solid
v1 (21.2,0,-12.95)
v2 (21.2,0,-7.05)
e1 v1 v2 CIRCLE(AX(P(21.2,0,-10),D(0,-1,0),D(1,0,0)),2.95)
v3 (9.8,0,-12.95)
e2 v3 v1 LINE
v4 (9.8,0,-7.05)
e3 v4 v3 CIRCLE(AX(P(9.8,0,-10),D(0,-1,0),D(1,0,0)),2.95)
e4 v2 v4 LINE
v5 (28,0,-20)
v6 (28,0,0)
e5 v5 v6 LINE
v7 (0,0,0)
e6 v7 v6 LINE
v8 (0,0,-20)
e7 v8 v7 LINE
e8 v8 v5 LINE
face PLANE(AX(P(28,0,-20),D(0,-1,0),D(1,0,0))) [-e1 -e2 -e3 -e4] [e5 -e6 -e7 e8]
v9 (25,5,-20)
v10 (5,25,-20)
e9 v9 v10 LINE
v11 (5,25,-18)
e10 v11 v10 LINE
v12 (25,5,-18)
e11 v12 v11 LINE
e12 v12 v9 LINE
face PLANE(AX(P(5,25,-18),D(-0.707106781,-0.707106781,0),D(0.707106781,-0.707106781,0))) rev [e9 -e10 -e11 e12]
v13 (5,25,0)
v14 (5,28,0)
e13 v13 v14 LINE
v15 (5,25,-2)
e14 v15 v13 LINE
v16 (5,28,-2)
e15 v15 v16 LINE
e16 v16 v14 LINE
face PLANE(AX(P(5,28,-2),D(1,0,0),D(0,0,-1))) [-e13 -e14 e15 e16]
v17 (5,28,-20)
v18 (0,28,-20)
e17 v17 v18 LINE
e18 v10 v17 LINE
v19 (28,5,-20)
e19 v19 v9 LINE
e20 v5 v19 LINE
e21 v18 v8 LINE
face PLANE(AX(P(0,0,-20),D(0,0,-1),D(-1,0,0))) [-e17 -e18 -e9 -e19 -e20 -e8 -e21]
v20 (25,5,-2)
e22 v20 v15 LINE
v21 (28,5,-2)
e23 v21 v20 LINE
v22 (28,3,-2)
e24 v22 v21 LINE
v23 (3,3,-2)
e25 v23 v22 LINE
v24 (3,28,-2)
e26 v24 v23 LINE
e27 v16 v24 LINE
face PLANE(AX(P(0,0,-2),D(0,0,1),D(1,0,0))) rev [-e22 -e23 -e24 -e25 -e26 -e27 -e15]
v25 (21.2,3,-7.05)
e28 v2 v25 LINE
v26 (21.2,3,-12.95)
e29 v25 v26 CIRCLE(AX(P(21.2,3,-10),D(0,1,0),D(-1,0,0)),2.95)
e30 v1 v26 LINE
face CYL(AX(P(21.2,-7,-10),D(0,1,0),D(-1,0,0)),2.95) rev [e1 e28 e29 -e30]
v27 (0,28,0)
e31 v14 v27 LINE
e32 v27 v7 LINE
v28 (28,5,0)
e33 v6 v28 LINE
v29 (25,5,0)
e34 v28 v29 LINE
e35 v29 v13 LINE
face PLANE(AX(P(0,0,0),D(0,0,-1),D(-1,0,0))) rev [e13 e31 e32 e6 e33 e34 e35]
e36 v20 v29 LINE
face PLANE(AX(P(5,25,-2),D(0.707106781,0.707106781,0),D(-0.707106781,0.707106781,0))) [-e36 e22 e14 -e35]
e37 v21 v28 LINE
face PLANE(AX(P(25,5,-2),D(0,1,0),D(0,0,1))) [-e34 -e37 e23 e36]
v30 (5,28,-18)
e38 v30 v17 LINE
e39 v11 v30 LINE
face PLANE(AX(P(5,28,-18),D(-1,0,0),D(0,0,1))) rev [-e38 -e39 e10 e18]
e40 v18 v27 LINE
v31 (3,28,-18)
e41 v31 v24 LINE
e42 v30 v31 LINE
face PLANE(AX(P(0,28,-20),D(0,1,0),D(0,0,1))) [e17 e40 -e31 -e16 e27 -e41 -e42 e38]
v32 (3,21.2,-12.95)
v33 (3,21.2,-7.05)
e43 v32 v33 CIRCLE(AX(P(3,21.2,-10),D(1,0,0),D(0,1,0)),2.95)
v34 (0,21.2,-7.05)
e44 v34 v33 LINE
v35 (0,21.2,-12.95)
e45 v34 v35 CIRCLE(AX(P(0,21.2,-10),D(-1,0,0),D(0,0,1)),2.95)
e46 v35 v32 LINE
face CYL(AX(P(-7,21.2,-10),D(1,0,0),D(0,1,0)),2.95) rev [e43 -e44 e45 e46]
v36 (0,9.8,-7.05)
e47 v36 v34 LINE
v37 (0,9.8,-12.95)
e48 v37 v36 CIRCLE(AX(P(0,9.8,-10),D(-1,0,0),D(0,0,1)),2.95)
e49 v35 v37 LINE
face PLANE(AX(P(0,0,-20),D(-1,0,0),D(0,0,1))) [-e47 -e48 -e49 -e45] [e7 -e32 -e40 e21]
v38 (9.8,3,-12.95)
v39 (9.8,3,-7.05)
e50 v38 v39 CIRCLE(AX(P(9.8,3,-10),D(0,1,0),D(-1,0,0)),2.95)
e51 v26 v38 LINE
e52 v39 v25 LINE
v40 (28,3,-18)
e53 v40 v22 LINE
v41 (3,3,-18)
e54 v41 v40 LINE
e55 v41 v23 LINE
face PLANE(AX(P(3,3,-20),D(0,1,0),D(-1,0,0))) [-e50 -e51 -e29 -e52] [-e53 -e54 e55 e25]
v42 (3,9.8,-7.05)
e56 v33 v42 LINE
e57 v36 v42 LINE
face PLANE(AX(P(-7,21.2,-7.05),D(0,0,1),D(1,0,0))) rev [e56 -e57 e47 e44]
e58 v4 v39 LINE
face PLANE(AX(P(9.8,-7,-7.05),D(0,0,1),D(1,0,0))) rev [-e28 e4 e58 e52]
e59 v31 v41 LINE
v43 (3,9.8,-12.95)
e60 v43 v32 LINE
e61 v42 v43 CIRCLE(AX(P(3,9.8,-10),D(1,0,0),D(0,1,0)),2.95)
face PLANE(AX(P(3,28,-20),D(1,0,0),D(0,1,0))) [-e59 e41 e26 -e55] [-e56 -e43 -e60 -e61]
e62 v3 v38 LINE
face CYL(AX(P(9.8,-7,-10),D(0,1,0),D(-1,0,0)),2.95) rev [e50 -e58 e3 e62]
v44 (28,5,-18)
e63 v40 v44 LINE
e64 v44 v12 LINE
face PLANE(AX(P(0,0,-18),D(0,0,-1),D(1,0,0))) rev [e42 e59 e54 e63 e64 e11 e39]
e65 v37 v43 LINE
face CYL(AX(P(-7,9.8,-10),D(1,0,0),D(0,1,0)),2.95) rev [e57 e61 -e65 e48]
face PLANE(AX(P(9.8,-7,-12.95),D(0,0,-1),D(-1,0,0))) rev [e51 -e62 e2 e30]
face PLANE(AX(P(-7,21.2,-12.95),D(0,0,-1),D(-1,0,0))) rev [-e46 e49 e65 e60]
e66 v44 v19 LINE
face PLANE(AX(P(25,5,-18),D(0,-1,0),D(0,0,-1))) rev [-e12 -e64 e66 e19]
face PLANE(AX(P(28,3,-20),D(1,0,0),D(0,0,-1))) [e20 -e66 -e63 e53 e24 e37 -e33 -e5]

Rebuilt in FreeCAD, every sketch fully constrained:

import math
import FreeCAD as App
import Part
import Sketcher
from FreeCAD import Vector
Q = App.Units.Quantity

doc = App.newDocument("Part")
body = doc.addObject("PartDesign::Body", "Body")

sketch1 = body.newObject("Sketcher::SketchObject", "Sketch")
sketch1.AttachmentSupport = (doc.getObject("XY_Plane"), [""])
sketch1.MapMode = "FlatFace"
sketch1.addGeometry(Part.LineSegment(Vector(0, 28, 0), Vector(0, 0, 0)), False)
sketch1.addGeometry(Part.LineSegment(Vector(0, 0, 0), Vector(28, 0, 0)), False)
sketch1.addGeometry(Part.LineSegment(Vector(28, 0, 0), Vector(28, 3, 0)), False)
sketch1.addGeometry(Part.LineSegment(Vector(28, 3, 0), Vector(3, 3, 0)), False)
sketch1.addGeometry(Part.LineSegment(Vector(3, 3, 0), Vector(3, 28, 0)), False)
sketch1.addGeometry(Part.LineSegment(Vector(3, 28, 0), Vector(0, 28, 0)), False)
sketch1.addConstraint(Sketcher.Constraint("Coincident", 0, 2, 1, 1))
sketch1.addConstraint(Sketcher.Constraint("Coincident", 1, 2, 2, 1))
sketch1.addConstraint(Sketcher.Constraint("Coincident", 2, 2, 3, 1))
sketch1.addConstraint(Sketcher.Constraint("Coincident", 3, 2, 4, 1))
sketch1.addConstraint(Sketcher.Constraint("Coincident", 4, 2, 5, 1))
sketch1.addConstraint(Sketcher.Constraint("Coincident", 5, 2, 0, 1))
sketch1.addConstraint(Sketcher.Constraint("Vertical", 0))
sketch1.addConstraint(Sketcher.Constraint("Horizontal", 1))
sketch1.addConstraint(Sketcher.Constraint("Vertical", 2))
sketch1.addConstraint(Sketcher.Constraint("Horizontal", 3))
sketch1.addConstraint(Sketcher.Constraint("Vertical", 4))
sketch1.addConstraint(Sketcher.Constraint("Horizontal", 5))
sketch1.addConstraint(Sketcher.Constraint("Coincident", 0, 2, -1, 1))
sketch1.addConstraint(Sketcher.Constraint("Equal", 1, 0))
sketch1.addConstraint(Sketcher.Constraint("Equal", 5, 2))
sketch1.addConstraint(Sketcher.Constraint("DistanceX", 1, 1, 1, 2, Q("28 mm")))
sketch1.addConstraint(Sketcher.Constraint("DistanceX", 3, 2, 3, 1, Q("25 mm")))
pad1 = body.newObject("PartDesign::Pad", "Pad")
pad1.Profile = sketch1
pad1.Length = 20
pad1.Reversed = True

sketch2 = body.newObject("Sketcher::SketchObject", "Sketch001")
sketch2.AttachmentSupport = (doc.getObject("XZ_Plane"), [""])
sketch2.MapMode = "FlatFace"
sketch2.AttachmentOffset = App.Placement(Vector(0, 0, -3), App.Rotation())
sketch2.addGeometry(Part.LineSegment(Vector(21.2, -12.9, 0), Vector(9.8, -12.9, 0)), False)
sketch2.addGeometry(Part.ArcOfCircle(Part.Circle(Vector(9.8, -10, 0), Vector(0, 0, 1), 3), math.radians(90), math.radians(270)), False)
sketch2.addGeometry(Part.LineSegment(Vector(9.8, -7, 0), Vector(21.2, -7, 0)), False)
sketch2.addGeometry(Part.ArcOfCircle(Part.Circle(Vector(21.2, -10, 0), Vector(0, 0, 1), 3), math.radians(-90), math.radians(90)), False)
sketch2.addConstraint(Sketcher.Constraint("Tangent", 0, 2, 1, 2))
sketch2.addConstraint(Sketcher.Constraint("Tangent", 1, 1, 2, 1))
sketch2.addConstraint(Sketcher.Constraint("Tangent", 2, 2, 3, 2))
sketch2.addConstraint(Sketcher.Constraint("Tangent", 3, 1, 0, 1))
sketch2.addConstraint(Sketcher.Constraint("Horizontal", 0))
sketch2.addConstraint(Sketcher.Constraint("Horizontal", 2))
sketch2.addConstraint(Sketcher.Constraint("Radius", 1, Q("2.95 mm")))
sketch2.addConstraint(Sketcher.Constraint("DistanceX", 0, 2, 0, 1, Q("11.4 mm")))
sketch2.addConstraint(Sketcher.Constraint("DistanceY", 1, 3, -1, 1, Q("10 mm")))
sketch2.addConstraint(Sketcher.Constraint("DistanceX", -1, 1, 1, 3, Q("9.8 mm")))
pocket1 = body.newObject("PartDesign::Pocket", "Pocket")
pocket1.Profile = sketch2
pocket1.Length = 10
pocket1.Reversed = True

sketch3 = body.newObject("Sketcher::SketchObject", "Sketch002")
sketch3.AttachmentSupport = (doc.getObject("YZ_Plane"), [""])
sketch3.MapMode = "FlatFace"
sketch3.AttachmentOffset = App.Placement(Vector(0, 0, 3), App.Rotation())
sketch3.addGeometry(Part.LineSegment(Vector(9.8, -12.9, 0), Vector(21.2, -12.9, 0)), False)
sketch3.addGeometry(Part.ArcOfCircle(Part.Circle(Vector(21.2, -10, 0), Vector(0, 0, 1), 3), math.radians(-90), math.radians(90)), False)
sketch3.addGeometry(Part.LineSegment(Vector(21.2, -7, 0), Vector(9.8, -7, 0)), False)
sketch3.addGeometry(Part.ArcOfCircle(Part.Circle(Vector(9.8, -10, 0), Vector(0, 0, 1), 3), math.radians(90), math.radians(270)), False)
sketch3.addConstraint(Sketcher.Constraint("Tangent", 0, 2, 1, 1))
sketch3.addConstraint(Sketcher.Constraint("Tangent", 1, 2, 2, 1))
sketch3.addConstraint(Sketcher.Constraint("Tangent", 2, 2, 3, 1))
sketch3.addConstraint(Sketcher.Constraint("Tangent", 3, 2, 0, 1))
sketch3.addConstraint(Sketcher.Constraint("Horizontal", 0))
sketch3.addConstraint(Sketcher.Constraint("Horizontal", 2))
sketch3.addConstraint(Sketcher.Constraint("Radius", 1, Q("2.95 mm")))
sketch3.addConstraint(Sketcher.Constraint("DistanceX", 0, 1, 0, 2, Q("11.4 mm")))
sketch3.addConstraint(Sketcher.Constraint("DistanceY", 1, 3, -1, 1, Q("10 mm")))
sketch3.addConstraint(Sketcher.Constraint("DistanceX", -1, 1, 1, 3, Q("21.2 mm")))
pocket2 = body.newObject("PartDesign::Pocket", "Pocket001")
pocket2.Profile = sketch3
pocket2.Length = 10

sketch4 = body.newObject("Sketcher::SketchObject", "Sketch003")
sketch4.AttachmentSupport = (doc.getObject("XY_Plane"), [""])
sketch4.MapMode = "FlatFace"
sketch4.addGeometry(Part.LineSegment(Vector(5, 28, 0), Vector(3, 28, 0)), False)
sketch4.addGeometry(Part.LineSegment(Vector(3, 28, 0), Vector(3, 3, 0)), False)
sketch4.addGeometry(Part.LineSegment(Vector(3, 3, 0), Vector(28, 3, 0)), False)
sketch4.addGeometry(Part.LineSegment(Vector(28, 3, 0), Vector(28, 5, 0)), False)
sketch4.addGeometry(Part.LineSegment(Vector(28, 5, 0), Vector(25, 5, 0)), False)
sketch4.addGeometry(Part.LineSegment(Vector(25, 5, 0), Vector(5, 25, 0)), False)
sketch4.addGeometry(Part.LineSegment(Vector(5, 25, 0), Vector(5, 28, 0)), False)
sketch4.addConstraint(Sketcher.Constraint("Coincident", 0, 2, 1, 1))
sketch4.addConstraint(Sketcher.Constraint("Coincident", 1, 2, 2, 1))
sketch4.addConstraint(Sketcher.Constraint("Coincident", 2, 2, 3, 1))
sketch4.addConstraint(Sketcher.Constraint("Coincident", 3, 2, 4, 1))
sketch4.addConstraint(Sketcher.Constraint("Coincident", 4, 2, 5, 1))
sketch4.addConstraint(Sketcher.Constraint("Coincident", 5, 2, 6, 1))
sketch4.addConstraint(Sketcher.Constraint("Coincident", 6, 2, 0, 1))
sketch4.addConstraint(Sketcher.Constraint("Horizontal", 0))
sketch4.addConstraint(Sketcher.Constraint("Vertical", 1))
sketch4.addConstraint(Sketcher.Constraint("Horizontal", 2))
sketch4.addConstraint(Sketcher.Constraint("Vertical", 3))
sketch4.addConstraint(Sketcher.Constraint("Horizontal", 4))
sketch4.addConstraint(Sketcher.Constraint("Vertical", 6))
sketch4.addConstraint(Sketcher.Constraint("Equal", 2, 1))
sketch4.addConstraint(Sketcher.Constraint("Equal", 0, 3))
sketch4.addConstraint(Sketcher.Constraint("Equal", 4, 6))
sketch4.addConstraint(Sketcher.Constraint("DistanceX", 0, 2, 0, 1, Q("2 mm")))
sketch4.addConstraint(Sketcher.Constraint("DistanceX", 2, 1, 2, 2, Q("25 mm")))
sketch4.addConstraint(Sketcher.Constraint("DistanceX", 4, 2, 4, 1, Q("3 mm")))
sketch4.addConstraint(Sketcher.Constraint("DistanceX", -1, 1, 0, 2, Q("3 mm")))
sketch4.addConstraint(Sketcher.Constraint("DistanceY", -1, 1, 0, 2, Q("28 mm")))
pad2 = body.newObject("PartDesign::Pad", "Pad001")
pad2.Profile = sketch4
pad2.Length = 2
pad2.Reversed = True
doc.recompute()

datumplane = body.newObject("PartDesign::Plane", "DatumPlane")
datumplane.AttachmentSupport = (doc.getObject("XY_Plane"), [""])
datumplane.MapMode = "FlatFace"
datumplane.AttachmentOffset = App.Placement(Vector(0, 0, -10), App.Rotation())
mirrored = body.newObject("PartDesign::Mirrored", "Mirrored")
mirrored.Originals = [pad2]
mirrored.MirrorPlane = (datumplane, [""])
body.Tip = mirrored

doc.recompute()
